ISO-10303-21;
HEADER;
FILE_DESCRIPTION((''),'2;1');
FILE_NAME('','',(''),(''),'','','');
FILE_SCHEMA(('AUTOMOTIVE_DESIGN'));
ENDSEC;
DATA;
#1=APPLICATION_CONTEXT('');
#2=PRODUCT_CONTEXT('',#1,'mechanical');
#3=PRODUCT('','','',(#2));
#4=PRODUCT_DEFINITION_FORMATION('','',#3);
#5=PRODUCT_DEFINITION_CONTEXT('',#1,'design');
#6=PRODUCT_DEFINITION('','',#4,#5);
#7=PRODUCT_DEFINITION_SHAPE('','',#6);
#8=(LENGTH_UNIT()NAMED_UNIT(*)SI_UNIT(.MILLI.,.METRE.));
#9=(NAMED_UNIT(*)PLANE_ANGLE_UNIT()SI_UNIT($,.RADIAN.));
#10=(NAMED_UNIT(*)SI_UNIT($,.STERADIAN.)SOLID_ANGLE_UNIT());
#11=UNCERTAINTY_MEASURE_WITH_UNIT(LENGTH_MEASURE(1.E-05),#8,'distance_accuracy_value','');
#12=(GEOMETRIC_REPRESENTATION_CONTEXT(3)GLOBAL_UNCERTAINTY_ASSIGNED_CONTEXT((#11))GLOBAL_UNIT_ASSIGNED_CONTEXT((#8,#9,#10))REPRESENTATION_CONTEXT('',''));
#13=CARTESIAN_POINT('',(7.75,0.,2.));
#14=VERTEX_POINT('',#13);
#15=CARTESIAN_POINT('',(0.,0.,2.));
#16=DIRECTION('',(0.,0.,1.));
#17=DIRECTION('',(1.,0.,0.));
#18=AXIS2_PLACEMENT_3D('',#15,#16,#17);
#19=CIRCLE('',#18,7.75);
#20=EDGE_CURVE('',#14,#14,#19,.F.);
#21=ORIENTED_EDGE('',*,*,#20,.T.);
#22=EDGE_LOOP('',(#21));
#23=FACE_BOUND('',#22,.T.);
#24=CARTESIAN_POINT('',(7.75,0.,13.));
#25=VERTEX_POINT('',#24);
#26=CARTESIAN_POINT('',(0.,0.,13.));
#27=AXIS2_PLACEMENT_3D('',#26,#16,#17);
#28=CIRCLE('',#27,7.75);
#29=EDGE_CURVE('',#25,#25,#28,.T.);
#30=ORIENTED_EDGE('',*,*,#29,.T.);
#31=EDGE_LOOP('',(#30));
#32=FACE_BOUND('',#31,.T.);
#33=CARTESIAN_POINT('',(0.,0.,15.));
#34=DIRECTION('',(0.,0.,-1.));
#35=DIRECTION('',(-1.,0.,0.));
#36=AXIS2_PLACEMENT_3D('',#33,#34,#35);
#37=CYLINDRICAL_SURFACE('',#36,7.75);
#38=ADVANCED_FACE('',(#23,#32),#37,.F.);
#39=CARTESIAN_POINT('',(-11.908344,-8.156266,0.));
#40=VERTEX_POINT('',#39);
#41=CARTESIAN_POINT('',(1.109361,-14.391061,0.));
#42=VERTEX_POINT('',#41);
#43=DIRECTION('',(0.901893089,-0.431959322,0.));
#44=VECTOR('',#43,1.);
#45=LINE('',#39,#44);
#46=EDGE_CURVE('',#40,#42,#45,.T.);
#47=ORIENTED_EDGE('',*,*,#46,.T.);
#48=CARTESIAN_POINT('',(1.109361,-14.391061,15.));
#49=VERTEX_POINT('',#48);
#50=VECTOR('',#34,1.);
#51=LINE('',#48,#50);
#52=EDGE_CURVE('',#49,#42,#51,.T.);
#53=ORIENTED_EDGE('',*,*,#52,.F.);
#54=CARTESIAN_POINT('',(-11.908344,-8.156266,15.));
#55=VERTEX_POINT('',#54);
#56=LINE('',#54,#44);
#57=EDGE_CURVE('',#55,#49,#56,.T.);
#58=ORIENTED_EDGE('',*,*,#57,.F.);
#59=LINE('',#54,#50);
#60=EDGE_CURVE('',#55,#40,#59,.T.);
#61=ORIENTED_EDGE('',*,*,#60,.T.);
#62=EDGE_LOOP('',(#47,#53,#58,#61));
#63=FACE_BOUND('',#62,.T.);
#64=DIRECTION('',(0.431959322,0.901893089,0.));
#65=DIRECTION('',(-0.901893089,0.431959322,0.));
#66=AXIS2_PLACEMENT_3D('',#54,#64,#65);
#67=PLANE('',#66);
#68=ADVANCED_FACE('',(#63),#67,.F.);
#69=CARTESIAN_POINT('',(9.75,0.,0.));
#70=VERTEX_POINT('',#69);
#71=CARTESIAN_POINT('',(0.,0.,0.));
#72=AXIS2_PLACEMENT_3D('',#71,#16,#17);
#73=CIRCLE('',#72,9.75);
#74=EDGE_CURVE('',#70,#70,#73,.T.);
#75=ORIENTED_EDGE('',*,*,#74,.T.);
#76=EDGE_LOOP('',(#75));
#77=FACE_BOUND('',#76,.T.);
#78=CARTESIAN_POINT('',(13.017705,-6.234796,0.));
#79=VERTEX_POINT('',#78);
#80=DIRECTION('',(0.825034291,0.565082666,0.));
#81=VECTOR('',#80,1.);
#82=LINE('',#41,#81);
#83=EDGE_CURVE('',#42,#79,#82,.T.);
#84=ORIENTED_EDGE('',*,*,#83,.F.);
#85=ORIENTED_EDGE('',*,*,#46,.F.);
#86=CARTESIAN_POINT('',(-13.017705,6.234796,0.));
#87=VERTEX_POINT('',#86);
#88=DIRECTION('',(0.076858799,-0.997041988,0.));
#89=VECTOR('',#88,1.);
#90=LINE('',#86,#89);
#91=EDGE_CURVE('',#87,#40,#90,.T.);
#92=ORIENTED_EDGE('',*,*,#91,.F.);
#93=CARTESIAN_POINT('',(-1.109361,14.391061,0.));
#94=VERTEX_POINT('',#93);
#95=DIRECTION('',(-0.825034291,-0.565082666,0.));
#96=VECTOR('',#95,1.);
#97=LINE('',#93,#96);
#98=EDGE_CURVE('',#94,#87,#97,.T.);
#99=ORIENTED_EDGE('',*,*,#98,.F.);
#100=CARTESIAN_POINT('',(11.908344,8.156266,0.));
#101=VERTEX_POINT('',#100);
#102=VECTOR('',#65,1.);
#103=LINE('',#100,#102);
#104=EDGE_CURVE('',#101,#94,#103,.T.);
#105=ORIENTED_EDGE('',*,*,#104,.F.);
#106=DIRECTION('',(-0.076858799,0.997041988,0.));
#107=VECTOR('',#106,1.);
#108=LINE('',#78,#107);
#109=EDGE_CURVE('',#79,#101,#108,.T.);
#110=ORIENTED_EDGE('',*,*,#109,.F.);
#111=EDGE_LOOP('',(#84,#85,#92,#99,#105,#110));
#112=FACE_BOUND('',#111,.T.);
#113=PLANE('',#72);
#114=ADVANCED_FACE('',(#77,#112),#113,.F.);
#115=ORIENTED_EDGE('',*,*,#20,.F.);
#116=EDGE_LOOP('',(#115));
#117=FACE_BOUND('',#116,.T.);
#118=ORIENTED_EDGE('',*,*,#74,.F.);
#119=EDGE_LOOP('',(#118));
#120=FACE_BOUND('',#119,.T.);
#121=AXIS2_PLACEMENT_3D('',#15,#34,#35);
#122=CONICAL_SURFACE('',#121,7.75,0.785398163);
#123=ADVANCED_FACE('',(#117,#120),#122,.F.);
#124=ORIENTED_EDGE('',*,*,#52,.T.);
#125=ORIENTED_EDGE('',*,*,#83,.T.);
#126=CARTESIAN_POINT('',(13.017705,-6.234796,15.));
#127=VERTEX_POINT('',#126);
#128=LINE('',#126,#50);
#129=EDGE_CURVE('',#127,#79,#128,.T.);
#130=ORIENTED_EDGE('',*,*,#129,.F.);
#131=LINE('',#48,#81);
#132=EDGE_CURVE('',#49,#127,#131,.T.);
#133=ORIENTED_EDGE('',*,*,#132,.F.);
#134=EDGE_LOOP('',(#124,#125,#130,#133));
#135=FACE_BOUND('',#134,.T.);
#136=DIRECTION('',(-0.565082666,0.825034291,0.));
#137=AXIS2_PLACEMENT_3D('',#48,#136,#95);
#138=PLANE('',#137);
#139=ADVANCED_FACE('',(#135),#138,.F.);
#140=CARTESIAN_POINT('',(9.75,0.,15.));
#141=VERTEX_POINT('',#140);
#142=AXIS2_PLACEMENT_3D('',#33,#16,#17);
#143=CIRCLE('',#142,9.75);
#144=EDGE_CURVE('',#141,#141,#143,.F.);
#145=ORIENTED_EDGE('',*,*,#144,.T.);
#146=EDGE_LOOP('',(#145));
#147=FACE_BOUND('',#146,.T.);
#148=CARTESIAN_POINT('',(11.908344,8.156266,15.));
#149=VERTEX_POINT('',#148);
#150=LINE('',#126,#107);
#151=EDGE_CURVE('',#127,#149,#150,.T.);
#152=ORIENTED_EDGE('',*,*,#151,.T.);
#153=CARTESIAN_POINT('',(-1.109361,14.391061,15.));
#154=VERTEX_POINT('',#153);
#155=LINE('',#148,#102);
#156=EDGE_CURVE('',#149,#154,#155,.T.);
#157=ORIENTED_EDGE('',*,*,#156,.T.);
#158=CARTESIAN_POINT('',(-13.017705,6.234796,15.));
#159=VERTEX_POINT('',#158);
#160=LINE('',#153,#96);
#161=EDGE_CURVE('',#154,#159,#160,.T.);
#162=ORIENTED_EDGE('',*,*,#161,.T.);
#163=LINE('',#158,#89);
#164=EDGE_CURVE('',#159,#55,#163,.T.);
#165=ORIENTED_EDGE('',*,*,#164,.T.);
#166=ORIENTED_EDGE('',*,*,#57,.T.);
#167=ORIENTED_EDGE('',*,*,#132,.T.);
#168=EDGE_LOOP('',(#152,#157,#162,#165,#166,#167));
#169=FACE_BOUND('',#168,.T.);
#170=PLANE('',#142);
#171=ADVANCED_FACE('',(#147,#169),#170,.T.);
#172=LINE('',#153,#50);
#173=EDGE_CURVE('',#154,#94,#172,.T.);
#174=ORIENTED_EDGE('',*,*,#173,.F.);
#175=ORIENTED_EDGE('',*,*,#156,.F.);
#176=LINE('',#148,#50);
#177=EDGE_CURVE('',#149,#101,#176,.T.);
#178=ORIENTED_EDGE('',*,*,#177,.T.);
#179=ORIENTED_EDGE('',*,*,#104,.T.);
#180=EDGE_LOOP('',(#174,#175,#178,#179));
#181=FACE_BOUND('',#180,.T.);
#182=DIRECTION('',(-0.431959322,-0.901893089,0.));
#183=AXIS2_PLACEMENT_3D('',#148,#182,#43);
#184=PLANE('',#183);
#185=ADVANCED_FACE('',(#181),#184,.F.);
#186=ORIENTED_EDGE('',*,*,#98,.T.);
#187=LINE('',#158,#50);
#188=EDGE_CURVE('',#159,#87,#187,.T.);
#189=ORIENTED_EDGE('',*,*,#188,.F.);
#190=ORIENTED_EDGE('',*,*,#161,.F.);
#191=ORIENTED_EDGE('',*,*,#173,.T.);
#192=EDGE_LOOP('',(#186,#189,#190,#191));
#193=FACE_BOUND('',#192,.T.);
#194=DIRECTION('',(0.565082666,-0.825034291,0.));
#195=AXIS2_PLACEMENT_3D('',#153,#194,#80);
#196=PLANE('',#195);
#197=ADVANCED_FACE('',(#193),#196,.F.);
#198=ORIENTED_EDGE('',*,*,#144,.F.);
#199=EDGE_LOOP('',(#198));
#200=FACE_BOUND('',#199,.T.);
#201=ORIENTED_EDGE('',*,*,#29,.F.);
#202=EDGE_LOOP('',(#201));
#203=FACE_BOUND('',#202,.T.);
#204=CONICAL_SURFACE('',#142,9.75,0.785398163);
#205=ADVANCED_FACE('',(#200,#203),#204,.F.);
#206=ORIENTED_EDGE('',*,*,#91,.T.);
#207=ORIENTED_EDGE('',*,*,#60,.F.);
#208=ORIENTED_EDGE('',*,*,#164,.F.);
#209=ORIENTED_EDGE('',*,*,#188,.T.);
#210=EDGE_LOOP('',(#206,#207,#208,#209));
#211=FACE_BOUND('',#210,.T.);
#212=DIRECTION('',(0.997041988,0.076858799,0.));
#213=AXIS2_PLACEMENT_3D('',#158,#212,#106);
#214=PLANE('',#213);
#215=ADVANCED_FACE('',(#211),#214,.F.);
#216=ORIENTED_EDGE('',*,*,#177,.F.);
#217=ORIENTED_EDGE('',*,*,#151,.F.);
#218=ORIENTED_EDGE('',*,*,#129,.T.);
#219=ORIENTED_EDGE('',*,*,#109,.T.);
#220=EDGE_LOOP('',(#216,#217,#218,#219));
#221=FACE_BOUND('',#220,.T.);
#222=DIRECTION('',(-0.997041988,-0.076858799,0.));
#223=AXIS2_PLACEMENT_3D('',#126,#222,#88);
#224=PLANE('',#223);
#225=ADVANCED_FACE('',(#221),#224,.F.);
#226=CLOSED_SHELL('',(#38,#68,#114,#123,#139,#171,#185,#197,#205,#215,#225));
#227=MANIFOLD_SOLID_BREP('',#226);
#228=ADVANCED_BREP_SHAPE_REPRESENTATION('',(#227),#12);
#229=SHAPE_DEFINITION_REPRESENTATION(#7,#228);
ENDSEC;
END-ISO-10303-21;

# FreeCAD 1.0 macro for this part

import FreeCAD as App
import Part
import Sketcher
from FreeCAD import Vector


def edges_at(feature, points):
    """Names of the edges that pass closest to the given points."""
    edges = feature.Shape.Edges
    near = lambda p: min(range(len(edges)), key=lambda i: edges[i].distToShape(Part.Vertex(*p))[0])
    return sorted({f"Edge{near(p) + 1}" for p in points})


def add_polygon(sketch, points):
    """Adds a closed chain of lines whose ends are joined by coincident constraints."""
    first, n = sketch.GeometryCount, len(points)
    for a, b in zip(points, points[1:] + points[:1]):
        sketch.addGeometry(Part.LineSegment(App.Vector(*a, 0), App.Vector(*b, 0)), False)
    for i in range(n):
        sketch.addConstraint(Sketcher.Constraint("Coincident", first + i, 2, first + (i + 1) % n, 1))

doc = App.newDocument("Part")
body = doc.addObject("PartDesign::Body", "Body")

# Sketch on XY plane
sketch1 = body.newObject("Sketcher::SketchObject", "Sketch")
sketch1.AttachmentSupport = (doc.getObject("XY_Plane"), [""])
sketch1.MapMode = "FlatFace"
add_polygon(sketch1, [(13, -6), (12, 8), (-1, 14), (-13, 6), (-12, -8), (1, -14)])  # lines 0-5
sketch1.addConstraint([
    Sketcher.Constraint("Symmetric", 0, 2, 3, 2, -1, 1),
    Sketcher.Constraint("Symmetric", 1, 2, 4, 2, -1, 1),
    Sketcher.Constraint("Symmetric", 2, 2, 5, 2, -1, 1),
    Sketcher.Constraint("Equal", 0, 1),
    Sketcher.Constraint("Equal", 1, 2),
    Sketcher.Constraint("DistanceX", 1, 2, -1, 1, 1.109361),
    Sketcher.Constraint("DistanceY", -1, 1, 1, 2, 14.391061),
    Sketcher.Constraint("DistanceX", 2, 2, 0, 2, 24.92605),
    Sketcher.Constraint("DistanceY", 2, 2, 0, 2, 1.92147),
])
pad1 = body.newObject("PartDesign::Pad", "Pad")
pad1.Profile = sketch1
pad1.Length = 15

# Sketch on XY plane
sketch2 = body.newObject("Sketcher::SketchObject", "Sketch001")
sketch2.AttachmentSupport = (doc.getObject("XY_Plane"), [""])
sketch2.MapMode = "FlatFace"
sketch2.addGeometry(Part.Circle(Vector(0, 0, 0), Vector(0, 0, 1), 8), False)
sketch2.addConstraint([
    Sketcher.Constraint("Coincident", 0, 3, -1, 1),
    Sketcher.Constraint("Diameter", 0, 15.5),
])
pocket1 = body.newObject("PartDesign::Pocket", "Pocket")
pocket1.Profile = sketch2
pocket1.Type = "ThroughAll"
pocket1.Reversed = True
doc.recompute()

chamfer = body.newObject("PartDesign::Chamfer", "Chamfer")
chamfer.Base = (pocket1, edges_at(pocket1, [(7.75, 0, 15), (7.75, 0, 0)]))
chamfer.Size = 2

doc.recompute()
